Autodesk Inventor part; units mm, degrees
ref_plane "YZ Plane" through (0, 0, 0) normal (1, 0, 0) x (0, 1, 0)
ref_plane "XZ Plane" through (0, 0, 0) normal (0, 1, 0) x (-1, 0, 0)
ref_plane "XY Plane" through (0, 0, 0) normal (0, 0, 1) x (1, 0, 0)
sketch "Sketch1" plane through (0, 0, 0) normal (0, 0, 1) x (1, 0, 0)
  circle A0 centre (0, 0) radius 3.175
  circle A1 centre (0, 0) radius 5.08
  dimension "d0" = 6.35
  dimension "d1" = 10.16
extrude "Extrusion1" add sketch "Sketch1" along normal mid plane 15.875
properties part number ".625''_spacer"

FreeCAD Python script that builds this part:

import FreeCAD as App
import Part
import Sketcher

V = App.Vector
Q = App.Units.Quantity

doc = App.newDocument("Part")
body = doc.addObject("PartDesign::Body", "Body")

sketch1 = body.newObject("Sketcher::SketchObject", "Sketch")
sketch1.AttachmentSupport = (doc.getObject("XY_Plane"), [""])
sketch1.MapMode = "FlatFace"
sketch1.addGeometry([
    Part.Circle(V(0, 0, 0), V(0, 0, 1), 5.1),
    Part.Circle(V(0, 0, 0), V(0, 0, 1), 3.2),
], False)
sketch1.addConstraint([
    Sketcher.Constraint("Coincident", 0, 3, -1, 1),
    Sketcher.Constraint("Coincident", 1, 3, -1, 1),
    Sketcher.Constraint("Diameter", 0, Q("0.4 in")),
    Sketcher.Constraint("Diameter", 1, Q("0.25 in")),
])
pad1 = body.newObject("PartDesign::Pad", "Pad")
pad1.Profile = sketch1
pad1.Length = Q("0.625 in")
pad1.Midplane = True

doc.recompute()
